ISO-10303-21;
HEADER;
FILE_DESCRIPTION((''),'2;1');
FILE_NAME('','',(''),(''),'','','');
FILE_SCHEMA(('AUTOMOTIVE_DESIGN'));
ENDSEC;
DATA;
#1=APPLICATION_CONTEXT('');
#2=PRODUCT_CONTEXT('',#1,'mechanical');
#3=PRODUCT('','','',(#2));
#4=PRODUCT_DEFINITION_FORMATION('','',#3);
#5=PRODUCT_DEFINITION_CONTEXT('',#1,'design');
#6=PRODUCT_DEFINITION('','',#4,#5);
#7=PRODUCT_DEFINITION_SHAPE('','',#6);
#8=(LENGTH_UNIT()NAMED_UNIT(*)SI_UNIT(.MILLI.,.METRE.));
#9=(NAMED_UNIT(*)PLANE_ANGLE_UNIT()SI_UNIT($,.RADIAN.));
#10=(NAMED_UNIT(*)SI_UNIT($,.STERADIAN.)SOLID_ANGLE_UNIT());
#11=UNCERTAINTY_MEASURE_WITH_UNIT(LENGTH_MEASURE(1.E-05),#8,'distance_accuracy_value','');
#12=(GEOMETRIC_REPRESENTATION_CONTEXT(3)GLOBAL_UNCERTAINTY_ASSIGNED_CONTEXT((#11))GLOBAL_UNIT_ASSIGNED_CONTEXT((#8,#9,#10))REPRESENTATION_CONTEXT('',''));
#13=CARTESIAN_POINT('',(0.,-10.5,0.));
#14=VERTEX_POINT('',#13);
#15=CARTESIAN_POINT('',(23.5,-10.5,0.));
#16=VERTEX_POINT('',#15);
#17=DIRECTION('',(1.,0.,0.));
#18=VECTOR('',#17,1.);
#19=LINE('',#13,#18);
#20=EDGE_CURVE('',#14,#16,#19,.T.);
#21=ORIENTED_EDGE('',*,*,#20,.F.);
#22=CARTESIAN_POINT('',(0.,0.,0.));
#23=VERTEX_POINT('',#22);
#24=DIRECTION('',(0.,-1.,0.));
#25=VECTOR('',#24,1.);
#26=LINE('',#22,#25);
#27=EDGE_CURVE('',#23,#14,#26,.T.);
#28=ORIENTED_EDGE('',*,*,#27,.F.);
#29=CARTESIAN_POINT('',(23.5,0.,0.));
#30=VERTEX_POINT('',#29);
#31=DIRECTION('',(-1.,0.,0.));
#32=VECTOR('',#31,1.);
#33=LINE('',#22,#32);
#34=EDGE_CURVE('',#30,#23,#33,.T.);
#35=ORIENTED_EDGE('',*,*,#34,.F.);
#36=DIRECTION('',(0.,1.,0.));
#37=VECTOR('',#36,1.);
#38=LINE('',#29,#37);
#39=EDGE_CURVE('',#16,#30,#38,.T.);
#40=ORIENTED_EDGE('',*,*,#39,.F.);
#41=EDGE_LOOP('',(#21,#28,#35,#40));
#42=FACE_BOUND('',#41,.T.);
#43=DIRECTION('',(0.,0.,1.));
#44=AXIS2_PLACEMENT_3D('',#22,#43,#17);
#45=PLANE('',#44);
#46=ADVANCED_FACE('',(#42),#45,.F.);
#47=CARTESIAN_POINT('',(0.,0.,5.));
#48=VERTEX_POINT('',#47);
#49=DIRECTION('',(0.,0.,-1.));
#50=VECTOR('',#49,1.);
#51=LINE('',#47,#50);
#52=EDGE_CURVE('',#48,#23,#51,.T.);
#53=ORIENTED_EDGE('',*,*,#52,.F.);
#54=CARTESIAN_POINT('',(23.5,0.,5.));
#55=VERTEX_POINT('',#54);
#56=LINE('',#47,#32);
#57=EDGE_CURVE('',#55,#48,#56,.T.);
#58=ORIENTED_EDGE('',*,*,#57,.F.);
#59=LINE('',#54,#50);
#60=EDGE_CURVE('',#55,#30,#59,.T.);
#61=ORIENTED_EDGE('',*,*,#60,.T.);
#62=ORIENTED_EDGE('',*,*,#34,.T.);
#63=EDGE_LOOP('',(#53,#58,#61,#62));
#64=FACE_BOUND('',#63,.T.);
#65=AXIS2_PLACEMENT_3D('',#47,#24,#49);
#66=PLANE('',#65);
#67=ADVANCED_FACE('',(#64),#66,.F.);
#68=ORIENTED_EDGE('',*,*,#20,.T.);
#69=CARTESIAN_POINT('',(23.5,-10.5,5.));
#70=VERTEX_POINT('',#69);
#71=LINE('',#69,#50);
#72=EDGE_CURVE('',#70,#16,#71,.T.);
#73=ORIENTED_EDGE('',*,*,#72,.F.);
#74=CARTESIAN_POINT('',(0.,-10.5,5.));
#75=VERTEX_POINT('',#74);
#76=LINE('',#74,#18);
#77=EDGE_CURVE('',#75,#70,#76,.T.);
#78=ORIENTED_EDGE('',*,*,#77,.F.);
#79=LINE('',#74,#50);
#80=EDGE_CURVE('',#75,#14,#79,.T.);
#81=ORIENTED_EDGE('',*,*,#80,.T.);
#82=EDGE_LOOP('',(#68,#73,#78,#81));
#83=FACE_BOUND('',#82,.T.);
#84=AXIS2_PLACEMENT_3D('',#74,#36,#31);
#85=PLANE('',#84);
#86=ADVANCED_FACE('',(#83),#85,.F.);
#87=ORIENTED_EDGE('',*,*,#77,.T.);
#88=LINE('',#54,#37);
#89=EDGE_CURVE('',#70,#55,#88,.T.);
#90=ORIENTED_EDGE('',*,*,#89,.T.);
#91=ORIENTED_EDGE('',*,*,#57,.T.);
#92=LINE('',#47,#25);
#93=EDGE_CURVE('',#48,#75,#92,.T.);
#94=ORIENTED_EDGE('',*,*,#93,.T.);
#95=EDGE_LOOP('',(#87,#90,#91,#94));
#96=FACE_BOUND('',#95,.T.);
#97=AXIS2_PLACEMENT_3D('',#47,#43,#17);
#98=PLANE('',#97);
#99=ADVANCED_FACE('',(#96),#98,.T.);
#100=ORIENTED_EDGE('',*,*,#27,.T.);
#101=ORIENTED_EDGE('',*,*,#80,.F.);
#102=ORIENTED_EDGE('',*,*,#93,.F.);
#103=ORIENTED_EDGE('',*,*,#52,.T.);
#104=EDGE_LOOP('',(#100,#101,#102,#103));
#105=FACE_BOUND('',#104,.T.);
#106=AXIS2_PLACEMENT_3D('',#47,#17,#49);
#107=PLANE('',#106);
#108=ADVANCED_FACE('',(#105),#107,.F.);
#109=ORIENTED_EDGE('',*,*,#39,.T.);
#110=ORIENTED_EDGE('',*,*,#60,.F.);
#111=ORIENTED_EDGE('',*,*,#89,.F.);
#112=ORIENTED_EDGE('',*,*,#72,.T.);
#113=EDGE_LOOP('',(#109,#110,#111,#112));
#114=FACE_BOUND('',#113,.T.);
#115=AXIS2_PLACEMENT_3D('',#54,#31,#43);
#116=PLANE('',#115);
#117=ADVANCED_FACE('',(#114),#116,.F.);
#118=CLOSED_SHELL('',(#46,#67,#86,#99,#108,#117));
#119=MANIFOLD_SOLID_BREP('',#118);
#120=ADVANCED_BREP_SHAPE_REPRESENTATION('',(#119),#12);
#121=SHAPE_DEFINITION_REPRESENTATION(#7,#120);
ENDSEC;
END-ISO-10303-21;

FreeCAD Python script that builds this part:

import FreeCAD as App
import Part
import Sketcher
from FreeCAD import Vector
Q = App.Units.Quantity


def add_polygon(sketch, points):
    """Adds a closed chain of lines whose ends are joined by coincident constraints."""
    first, n = sketch.GeometryCount, len(points)
    for a, b in zip(points, points[1:] + points[:1]):
        sketch.addGeometry(Part.LineSegment(App.Vector(*a, 0), App.Vector(*b, 0)), False)
    for i in range(n):
        sketch.addConstraint(Sketcher.Constraint("Coincident", first + i, 2, first + (i + 1) % n, 1))

doc = App.newDocument("Part")
body = doc.addObject("PartDesign::Body", "Body")

sketch1 = body.newObject("Sketcher::SketchObject", "Sketch")
sketch1.AttachmentSupport = (doc.getObject("XY_Plane"), [""])
sketch1.MapMode = "FlatFace"
add_polygon(sketch1, [(0, 0), (0, -10), (24, -10), (24, 0)])
sketch1.addConstraint([
    Sketcher.Constraint("Vertical", 0),
    Sketcher.Constraint("Horizontal", 1),
    Sketcher.Constraint("Vertical", 2),
    Sketcher.Constraint("Horizontal", 3),
    Sketcher.Constraint("Coincident", 3, 2, -1, 1),
    Sketcher.Constraint("DistanceX", 1, 1, 1, 2, Q("23.5 mm")),
    Sketcher.Constraint("DistanceY", 0, 2, 0, 1, Q("10.5 mm")),
])
pad1 = body.newObject("PartDesign::Pad", "Pad")
pad1.Profile = sketch1
pad1.Length = 5

doc.recompute()
